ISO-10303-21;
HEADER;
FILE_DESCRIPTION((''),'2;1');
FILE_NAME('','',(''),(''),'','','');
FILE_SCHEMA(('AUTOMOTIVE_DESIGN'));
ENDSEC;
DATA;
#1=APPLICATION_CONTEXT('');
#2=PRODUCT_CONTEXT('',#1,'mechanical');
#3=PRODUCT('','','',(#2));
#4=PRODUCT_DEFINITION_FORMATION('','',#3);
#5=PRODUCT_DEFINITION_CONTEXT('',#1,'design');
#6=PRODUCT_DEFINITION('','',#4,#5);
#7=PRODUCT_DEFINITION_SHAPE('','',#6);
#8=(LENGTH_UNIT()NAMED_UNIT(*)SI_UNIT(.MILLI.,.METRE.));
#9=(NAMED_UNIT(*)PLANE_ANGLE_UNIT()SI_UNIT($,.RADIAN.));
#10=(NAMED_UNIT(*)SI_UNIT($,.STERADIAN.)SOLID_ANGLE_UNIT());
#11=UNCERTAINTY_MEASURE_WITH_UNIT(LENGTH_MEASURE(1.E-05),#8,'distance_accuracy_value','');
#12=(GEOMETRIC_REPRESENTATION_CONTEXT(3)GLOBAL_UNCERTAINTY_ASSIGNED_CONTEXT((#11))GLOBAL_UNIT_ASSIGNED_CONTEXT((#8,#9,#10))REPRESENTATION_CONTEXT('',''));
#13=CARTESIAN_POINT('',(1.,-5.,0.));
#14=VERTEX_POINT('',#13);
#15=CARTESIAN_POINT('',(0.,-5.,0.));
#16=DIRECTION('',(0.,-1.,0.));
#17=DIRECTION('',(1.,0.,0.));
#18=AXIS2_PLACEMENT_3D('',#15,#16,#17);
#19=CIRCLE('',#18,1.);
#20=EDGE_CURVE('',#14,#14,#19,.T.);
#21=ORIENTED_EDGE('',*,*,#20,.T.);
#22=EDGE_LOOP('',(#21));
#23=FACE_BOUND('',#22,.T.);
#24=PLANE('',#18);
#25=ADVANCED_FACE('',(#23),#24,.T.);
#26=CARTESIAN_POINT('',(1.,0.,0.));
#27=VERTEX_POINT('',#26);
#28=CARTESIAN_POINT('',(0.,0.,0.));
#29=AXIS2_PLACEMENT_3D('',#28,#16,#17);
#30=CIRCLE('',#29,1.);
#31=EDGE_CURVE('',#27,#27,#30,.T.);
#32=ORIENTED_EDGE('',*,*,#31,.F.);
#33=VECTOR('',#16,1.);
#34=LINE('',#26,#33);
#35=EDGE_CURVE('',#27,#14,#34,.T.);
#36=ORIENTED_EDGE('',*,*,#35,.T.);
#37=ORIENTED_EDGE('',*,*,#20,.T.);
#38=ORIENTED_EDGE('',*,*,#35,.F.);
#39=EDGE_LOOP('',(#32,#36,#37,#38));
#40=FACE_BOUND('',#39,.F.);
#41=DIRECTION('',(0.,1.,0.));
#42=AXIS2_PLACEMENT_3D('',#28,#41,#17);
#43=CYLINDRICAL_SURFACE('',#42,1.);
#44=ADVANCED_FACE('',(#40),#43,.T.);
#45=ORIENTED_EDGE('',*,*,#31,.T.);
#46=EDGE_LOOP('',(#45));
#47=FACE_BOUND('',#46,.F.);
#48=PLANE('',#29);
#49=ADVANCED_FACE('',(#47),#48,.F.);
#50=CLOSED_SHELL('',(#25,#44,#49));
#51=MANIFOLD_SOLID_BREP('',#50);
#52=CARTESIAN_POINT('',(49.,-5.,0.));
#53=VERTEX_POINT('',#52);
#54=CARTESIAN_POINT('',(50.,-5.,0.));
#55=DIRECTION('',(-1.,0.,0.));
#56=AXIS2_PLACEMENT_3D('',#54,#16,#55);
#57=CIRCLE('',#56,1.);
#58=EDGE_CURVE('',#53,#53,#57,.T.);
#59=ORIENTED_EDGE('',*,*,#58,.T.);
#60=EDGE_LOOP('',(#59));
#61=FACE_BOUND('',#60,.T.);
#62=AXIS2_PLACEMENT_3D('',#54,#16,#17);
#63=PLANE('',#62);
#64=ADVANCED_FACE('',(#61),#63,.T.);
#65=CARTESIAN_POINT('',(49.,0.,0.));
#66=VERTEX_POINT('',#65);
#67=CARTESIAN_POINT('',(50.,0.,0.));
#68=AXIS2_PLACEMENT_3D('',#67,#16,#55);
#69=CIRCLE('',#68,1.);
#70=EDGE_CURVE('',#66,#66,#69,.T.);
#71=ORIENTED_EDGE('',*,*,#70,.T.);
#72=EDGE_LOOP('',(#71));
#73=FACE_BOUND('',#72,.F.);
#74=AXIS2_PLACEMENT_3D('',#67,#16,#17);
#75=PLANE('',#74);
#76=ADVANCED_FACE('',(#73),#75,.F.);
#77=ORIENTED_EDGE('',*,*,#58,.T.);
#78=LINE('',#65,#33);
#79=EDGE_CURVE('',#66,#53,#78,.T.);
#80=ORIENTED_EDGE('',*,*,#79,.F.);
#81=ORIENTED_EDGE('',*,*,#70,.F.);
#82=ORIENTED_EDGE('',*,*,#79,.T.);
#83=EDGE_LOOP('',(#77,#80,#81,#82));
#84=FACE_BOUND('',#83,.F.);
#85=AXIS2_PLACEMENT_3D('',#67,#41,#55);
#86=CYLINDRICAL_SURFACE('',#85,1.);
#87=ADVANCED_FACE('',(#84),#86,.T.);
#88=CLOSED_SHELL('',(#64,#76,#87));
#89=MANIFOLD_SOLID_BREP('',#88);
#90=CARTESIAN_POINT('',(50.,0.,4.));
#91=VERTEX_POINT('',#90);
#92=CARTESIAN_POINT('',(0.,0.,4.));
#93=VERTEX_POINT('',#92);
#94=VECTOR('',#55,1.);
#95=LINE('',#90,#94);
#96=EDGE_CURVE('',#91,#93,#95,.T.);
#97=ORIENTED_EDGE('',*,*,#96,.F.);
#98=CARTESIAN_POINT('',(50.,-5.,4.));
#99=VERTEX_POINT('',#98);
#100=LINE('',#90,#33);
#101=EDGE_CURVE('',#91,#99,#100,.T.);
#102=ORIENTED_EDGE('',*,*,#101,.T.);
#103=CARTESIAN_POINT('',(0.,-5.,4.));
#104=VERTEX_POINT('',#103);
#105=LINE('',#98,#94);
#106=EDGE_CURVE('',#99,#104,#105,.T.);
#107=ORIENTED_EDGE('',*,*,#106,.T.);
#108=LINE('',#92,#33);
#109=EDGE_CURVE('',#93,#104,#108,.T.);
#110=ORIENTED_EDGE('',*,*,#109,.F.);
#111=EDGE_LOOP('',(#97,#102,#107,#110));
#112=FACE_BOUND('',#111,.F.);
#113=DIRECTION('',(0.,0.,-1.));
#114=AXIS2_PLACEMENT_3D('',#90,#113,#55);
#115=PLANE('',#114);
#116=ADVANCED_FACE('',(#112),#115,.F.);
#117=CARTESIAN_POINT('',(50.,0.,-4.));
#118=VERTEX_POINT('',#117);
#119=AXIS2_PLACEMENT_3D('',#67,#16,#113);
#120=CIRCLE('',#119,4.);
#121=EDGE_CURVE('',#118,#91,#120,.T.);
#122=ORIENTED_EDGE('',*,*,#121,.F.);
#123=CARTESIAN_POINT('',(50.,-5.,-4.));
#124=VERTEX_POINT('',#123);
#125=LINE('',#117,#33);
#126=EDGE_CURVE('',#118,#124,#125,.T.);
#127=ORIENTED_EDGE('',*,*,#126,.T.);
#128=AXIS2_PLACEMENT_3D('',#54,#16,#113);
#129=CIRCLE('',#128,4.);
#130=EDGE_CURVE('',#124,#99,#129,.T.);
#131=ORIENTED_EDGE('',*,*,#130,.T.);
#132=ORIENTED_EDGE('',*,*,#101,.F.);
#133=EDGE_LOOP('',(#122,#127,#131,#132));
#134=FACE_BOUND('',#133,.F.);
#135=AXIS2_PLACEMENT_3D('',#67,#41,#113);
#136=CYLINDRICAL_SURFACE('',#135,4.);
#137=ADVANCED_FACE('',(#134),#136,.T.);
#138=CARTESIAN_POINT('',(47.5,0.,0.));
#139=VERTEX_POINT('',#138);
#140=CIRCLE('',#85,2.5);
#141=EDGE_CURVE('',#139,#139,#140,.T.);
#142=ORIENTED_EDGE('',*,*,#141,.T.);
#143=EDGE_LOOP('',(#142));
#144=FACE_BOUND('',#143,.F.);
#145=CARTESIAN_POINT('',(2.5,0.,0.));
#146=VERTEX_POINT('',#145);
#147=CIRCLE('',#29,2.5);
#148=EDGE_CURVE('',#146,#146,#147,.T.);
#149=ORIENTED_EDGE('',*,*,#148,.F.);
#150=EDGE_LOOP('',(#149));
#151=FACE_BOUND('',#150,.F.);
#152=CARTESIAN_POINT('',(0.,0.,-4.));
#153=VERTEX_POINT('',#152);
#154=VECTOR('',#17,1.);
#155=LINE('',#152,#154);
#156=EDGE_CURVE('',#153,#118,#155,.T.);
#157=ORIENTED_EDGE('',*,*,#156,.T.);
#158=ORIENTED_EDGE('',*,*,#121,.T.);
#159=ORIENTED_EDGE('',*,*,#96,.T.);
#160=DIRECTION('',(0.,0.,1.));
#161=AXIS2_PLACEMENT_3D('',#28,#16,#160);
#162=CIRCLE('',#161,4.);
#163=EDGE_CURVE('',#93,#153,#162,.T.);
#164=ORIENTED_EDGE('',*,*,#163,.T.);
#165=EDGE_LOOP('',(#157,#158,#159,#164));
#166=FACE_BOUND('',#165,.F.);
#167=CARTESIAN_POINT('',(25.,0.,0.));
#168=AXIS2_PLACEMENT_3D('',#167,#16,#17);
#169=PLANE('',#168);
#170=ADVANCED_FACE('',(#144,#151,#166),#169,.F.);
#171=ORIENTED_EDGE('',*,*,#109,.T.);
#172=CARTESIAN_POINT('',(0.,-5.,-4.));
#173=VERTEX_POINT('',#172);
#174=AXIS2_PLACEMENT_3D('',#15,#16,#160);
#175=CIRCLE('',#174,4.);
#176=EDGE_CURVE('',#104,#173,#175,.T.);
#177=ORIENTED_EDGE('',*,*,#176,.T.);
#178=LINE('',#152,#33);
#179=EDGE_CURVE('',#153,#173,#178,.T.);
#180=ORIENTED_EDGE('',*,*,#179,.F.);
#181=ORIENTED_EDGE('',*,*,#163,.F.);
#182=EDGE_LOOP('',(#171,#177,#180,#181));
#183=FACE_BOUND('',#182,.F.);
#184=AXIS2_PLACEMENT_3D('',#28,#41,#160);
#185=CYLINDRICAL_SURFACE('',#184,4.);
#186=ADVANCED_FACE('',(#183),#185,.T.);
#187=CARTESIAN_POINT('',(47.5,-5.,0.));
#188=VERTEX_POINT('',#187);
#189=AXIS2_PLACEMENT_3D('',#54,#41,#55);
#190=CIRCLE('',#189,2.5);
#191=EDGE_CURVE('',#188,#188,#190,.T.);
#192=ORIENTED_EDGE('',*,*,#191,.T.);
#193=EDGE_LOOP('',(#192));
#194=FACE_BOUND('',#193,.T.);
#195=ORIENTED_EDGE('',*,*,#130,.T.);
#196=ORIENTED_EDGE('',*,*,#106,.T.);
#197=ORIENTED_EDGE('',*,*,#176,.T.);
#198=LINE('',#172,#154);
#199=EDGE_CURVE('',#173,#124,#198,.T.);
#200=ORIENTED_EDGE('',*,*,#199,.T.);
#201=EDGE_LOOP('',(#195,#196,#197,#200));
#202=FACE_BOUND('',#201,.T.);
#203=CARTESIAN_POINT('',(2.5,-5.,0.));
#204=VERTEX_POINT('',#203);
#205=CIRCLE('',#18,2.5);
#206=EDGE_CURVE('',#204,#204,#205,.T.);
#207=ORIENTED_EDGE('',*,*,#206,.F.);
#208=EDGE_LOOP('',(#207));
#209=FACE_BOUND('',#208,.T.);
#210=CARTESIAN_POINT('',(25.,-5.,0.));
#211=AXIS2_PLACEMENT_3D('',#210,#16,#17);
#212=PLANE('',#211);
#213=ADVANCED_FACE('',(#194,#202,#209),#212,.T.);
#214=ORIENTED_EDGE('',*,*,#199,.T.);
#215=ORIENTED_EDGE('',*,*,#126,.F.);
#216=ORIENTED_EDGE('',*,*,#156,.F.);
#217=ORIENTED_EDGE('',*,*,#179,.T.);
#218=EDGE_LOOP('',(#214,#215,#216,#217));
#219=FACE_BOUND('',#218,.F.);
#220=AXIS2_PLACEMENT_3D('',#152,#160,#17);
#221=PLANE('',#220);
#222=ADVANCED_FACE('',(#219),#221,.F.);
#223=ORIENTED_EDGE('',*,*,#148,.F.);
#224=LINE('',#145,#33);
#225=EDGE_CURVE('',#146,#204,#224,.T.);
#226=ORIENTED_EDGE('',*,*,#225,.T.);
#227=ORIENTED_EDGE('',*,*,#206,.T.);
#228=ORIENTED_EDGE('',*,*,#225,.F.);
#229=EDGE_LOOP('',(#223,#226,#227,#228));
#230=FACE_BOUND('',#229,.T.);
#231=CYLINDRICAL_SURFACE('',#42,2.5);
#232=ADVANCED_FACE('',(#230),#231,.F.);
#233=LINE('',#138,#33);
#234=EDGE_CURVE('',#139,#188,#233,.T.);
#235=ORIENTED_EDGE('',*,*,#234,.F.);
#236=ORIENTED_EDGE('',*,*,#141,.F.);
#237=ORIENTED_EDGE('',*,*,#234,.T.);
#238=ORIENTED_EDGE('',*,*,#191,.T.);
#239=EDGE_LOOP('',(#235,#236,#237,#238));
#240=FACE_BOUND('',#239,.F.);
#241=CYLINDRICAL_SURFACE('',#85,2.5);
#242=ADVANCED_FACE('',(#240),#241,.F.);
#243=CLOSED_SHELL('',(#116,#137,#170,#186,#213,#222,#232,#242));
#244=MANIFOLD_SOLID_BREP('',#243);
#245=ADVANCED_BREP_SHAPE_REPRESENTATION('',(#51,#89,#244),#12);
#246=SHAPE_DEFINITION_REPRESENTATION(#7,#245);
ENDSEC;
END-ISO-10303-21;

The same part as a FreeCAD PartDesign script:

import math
import FreeCAD as App
import Part
import Sketcher

doc = App.newDocument("Part")
body = doc.addObject("PartDesign::Body", "Body")

sketch1 = doc.addObject("Sketcher::SketchObject", "Sketch")
body.addObject(sketch1)
sketch1.AttachmentSupport = (doc.XZ_Plane, [""])
sketch1.MapMode = "FlatFace"
sketch1.addGeometry(Part.Circle(App.Vector(0, 0, 0), App.Vector(0, 0, 1), 1), False)
sketch1.addConstraint([
    Sketcher.Constraint("Coincident", 0, 3, -1, 1),
    Sketcher.Constraint("Diameter", 0, 2.0),
])
pad1 = doc.addObject("PartDesign::Pad", "Pad")
body.addObject(pad1)
pad1.Profile = sketch1
pad1.Length = 5
body2 = doc.addObject("PartDesign::Body", "Body001")

sketch2 = doc.addObject("Sketcher::SketchObject", "Sketch001")
body2.addObject(sketch2)
sketch2.AttachmentSupport = (doc.getObject("XZ_Plane001"), [""])
sketch2.MapMode = "FlatFace"
sketch2.addGeometry([
    Part.LineSegment(App.Vector(50, 4, 0), App.Vector(0, 4, 0)),
    Part.ArcOfCircle(Part.Circle(App.Vector(0, 0, 0), App.Vector(0, 0, 1), 4), math.radians(90), math.radians(270)),
    Part.LineSegment(App.Vector(0, -4, 0), App.Vector(50, -4, 0)),
    Part.ArcOfCircle(Part.Circle(App.Vector(50, 0, 0), App.Vector(0, 0, 1), 4), math.radians(-90), math.radians(90)),
    Part.Circle(App.Vector(0, 0, 0), App.Vector(0, 0, 1), 2.5),
    Part.Circle(App.Vector(50, 0, 0), App.Vector(0, 0, 1), 2.5),
], False)
sketch2.addConstraint([
    Sketcher.Constraint("Tangent", 0, 2, 1, 1),
    Sketcher.Constraint("Tangent", 1, 2, 2, 1),
    Sketcher.Constraint("Tangent", 2, 2, 3, 1),
    Sketcher.Constraint("Tangent", 3, 2, 0, 1),
    Sketcher.Constraint("Horizontal", 0),
    Sketcher.Constraint("Horizontal", 2),
    Sketcher.Constraint("Coincident", 1, 3, -1, 1),
    Sketcher.Constraint("Coincident", 4, 3, -1, 1),
    Sketcher.Constraint("Coincident", 5, 3, 3, 3),
    Sketcher.Constraint("Equal", 4, 5),
    Sketcher.Constraint("Diameter", 4, 5.0),
    Sketcher.Constraint("Radius", 1, 4.0),
    Sketcher.Constraint("DistanceX", 0, 2, 0, 1, 50.0),
])
pad2 = doc.addObject("PartDesign::Pad", "Pad001")
body2.addObject(pad2)
pad2.Profile = sketch2
pad2.Length = 5
body3 = doc.addObject("PartDesign::Body", "Body002")

sketch3 = doc.addObject("Sketcher::SketchObject", "Sketch002")
body3.addObject(sketch3)
sketch3.AttachmentSupport = (doc.getObject("XZ_Plane002"), [""])
sketch3.MapMode = "FlatFace"
sketch3.addGeometry(Part.Circle(App.Vector(50, 0, 0), App.Vector(0, 0, 1), 1), False)
sketch3.addConstraint([
    Sketcher.Constraint("PointOnObject", 0, 3, -1),
    Sketcher.Constraint("Diameter", 0, 2.0),
    Sketcher.Constraint("DistanceX", -1, 1, 0, 3, 50.0),
])
pad3 = doc.addObject("PartDesign::Pad", "Pad002")
body3.addObject(pad3)
pad3.Profile = sketch3
pad3.Length = 5

doc.recompute()
